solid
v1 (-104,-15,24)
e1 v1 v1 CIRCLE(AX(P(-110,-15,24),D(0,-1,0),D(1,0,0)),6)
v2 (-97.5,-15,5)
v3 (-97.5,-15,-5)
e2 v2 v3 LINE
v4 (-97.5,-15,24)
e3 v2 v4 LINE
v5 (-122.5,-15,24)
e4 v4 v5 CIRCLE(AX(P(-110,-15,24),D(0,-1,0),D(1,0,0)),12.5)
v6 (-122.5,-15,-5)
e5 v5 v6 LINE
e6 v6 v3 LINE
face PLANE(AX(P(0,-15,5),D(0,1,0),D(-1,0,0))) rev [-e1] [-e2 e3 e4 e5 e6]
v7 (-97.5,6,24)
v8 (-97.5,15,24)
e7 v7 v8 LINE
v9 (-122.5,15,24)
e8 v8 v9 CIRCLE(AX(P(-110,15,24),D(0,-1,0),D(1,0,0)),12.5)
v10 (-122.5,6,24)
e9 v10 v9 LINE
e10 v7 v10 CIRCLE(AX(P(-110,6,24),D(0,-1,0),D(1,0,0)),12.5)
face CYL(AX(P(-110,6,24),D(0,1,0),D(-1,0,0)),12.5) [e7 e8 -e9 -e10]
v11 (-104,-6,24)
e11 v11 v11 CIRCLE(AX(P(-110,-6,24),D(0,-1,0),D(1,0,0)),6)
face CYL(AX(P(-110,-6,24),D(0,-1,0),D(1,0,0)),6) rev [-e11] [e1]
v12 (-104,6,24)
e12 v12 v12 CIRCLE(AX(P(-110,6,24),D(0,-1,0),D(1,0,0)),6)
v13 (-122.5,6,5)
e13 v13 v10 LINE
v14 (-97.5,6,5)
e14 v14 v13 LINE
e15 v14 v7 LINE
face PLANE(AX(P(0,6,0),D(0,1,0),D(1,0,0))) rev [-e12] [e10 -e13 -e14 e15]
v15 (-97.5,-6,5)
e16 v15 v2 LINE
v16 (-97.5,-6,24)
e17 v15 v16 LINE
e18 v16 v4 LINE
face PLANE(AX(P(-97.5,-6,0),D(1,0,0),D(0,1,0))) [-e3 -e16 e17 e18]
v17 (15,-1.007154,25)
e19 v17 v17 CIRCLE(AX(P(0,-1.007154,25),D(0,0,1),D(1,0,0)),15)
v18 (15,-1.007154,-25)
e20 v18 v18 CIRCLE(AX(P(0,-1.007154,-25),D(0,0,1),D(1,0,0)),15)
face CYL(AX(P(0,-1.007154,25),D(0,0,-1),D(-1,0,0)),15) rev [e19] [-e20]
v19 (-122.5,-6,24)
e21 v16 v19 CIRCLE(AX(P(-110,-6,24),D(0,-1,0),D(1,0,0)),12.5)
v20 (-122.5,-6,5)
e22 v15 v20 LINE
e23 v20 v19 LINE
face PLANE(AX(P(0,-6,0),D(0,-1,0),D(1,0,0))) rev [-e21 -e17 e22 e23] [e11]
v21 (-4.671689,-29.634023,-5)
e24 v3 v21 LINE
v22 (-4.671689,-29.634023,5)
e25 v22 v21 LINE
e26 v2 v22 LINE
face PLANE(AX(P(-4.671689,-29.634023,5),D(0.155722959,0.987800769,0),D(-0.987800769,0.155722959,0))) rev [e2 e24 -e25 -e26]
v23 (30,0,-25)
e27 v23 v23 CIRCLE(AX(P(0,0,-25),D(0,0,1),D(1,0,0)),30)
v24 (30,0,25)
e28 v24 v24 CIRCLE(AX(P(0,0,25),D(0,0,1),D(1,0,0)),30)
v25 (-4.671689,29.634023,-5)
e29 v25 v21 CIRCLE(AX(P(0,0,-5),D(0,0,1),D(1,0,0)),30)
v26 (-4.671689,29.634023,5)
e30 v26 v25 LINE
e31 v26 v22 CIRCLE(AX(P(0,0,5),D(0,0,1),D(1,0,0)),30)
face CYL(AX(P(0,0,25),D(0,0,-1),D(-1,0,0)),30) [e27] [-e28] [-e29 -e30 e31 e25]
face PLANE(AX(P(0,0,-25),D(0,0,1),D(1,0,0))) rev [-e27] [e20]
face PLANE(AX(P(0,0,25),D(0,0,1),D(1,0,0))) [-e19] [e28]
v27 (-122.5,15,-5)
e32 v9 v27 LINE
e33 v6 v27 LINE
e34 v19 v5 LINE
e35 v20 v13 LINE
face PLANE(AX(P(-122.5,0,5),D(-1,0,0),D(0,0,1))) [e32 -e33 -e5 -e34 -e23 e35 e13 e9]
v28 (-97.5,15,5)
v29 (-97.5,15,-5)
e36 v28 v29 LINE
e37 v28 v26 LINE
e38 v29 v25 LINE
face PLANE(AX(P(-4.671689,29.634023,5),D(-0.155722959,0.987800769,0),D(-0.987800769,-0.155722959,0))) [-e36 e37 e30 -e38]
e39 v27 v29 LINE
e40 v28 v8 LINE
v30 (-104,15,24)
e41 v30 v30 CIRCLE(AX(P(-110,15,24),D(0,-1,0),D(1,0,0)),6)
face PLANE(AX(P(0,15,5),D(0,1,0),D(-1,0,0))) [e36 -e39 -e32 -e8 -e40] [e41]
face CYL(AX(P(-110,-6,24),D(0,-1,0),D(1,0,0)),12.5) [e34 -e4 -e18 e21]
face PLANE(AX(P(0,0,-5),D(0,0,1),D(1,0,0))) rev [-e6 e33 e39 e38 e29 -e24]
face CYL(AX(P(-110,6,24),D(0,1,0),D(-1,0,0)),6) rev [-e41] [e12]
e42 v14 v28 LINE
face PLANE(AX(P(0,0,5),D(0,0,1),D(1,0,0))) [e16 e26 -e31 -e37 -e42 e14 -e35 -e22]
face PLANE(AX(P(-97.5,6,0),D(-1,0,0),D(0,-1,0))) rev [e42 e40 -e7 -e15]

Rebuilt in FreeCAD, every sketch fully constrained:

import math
import FreeCAD as App
import Part
import Sketcher
from FreeCAD import Vector

doc = App.newDocument("Part")
body = doc.addObject("PartDesign::Body", "Body")

sketch1 = body.newObject("Sketcher::SketchObject", "Sketch")
sketch1.AttachmentSupport = (doc.getObject("XY_Plane"), [""])
sketch1.MapMode = "FlatFace"
sketch1.addGeometry(Part.Circle(Vector(0, 0, 0), Vector(0, 0, 1), 30), False)
sketch1.addGeometry(Part.Circle(Vector(0, -1, 0), Vector(0, 0, 1), 15), False)
sketch1.addConstraint(Sketcher.Constraint("Coincident", 0, 3, -1, 1))
sketch1.addConstraint(Sketcher.Constraint("PointOnObject", 1, 3, -2))
sketch1.addConstraint(Sketcher.Constraint("Diameter", 0, 60.0))
sketch1.addConstraint(Sketcher.Constraint("Diameter", 1, 30.0))
sketch1.addConstraint(Sketcher.Constraint("DistanceY", 1, 3, -1, 1, 1.007154))
pad1 = body.newObject("PartDesign::Pad", "Pad")
pad1.Profile = sketch1
pad1.Length = 50
pad1.Midplane = True

sketch2 = body.newObject("Sketcher::SketchObject", "Sketch001")
sketch2.AttachmentSupport = (doc.getObject("XY_Plane"), [""])
sketch2.MapMode = "FlatFace"
sketch2.addGeometry(Part.LineSegment(Vector(-122, 15, 0), Vector(-122, -15, 0)), False)
sketch2.addGeometry(Part.LineSegment(Vector(-122, -15, 0), Vector(-98, -15, 0)), False)
sketch2.addGeometry(Part.LineSegment(Vector(-98, -15, 0), Vector(-5, -30, 0)), False)
sketch2.addGeometry(Part.ArcOfCircle(Part.Circle(Vector(0, 0, 0), Vector(0, 0, 1), 30), math.radians(99), math.radians(261)), False)
sketch2.addGeometry(Part.LineSegment(Vector(-5, 30, 0), Vector(-98, 15, 0)), False)
sketch2.addGeometry(Part.LineSegment(Vector(-98, 15, 0), Vector(-122, 15, 0)), False)
sketch2.addConstraint(Sketcher.Constraint("Coincident", 0, 2, 1, 1))
sketch2.addConstraint(Sketcher.Constraint("Coincident", 1, 2, 2, 1))
sketch2.addConstraint(Sketcher.Constraint("Tangent", 2, 2, 3, 2))
sketch2.addConstraint(Sketcher.Constraint("Tangent", 3, 1, 4, 1))
sketch2.addConstraint(Sketcher.Constraint("Coincident", 4, 2, 5, 1))
sketch2.addConstraint(Sketcher.Constraint("Coincident", 5, 2, 0, 1))
sketch2.addConstraint(Sketcher.Constraint("Vertical", 0))
sketch2.addConstraint(Sketcher.Constraint("Horizontal", 1))
sketch2.addConstraint(Sketcher.Constraint("Horizontal", 5))
sketch2.addConstraint(Sketcher.Constraint("Coincident", 3, 3, -1, 1))
sketch2.addConstraint(Sketcher.Constraint("Symmetric", 1, 2, 4, 2, -1))
sketch2.addConstraint(Sketcher.Constraint("Radius", 3, 30.0))
sketch2.addConstraint(Sketcher.Constraint("DistanceX", 1, 1, 1, 2, 25.0))
sketch2.addConstraint(Sketcher.Constraint("DistanceY", 0, 2, 0, 1, 30.0))
sketch2.addConstraint(Sketcher.Constraint("DistanceX", 0, 2, -1, 1, 122.5))
pad2 = body.newObject("PartDesign::Pad", "Pad001")
pad2.Profile = sketch2
pad2.Length = 10
pad2.Midplane = True

sketch3 = body.newObject("Sketcher::SketchObject", "Sketch002")
sketch3.AttachmentSupport = (doc.getObject("XZ_Plane"), [""])
sketch3.MapMode = "FlatFace"
sketch3.AttachmentOffset = App.Placement(Vector(0, 0, 15), App.Rotation())
sketch3.addGeometry(Part.LineSegment(Vector(-122, 24, 0), Vector(-122, 5, 0)), False)
sketch3.addGeometry(Part.LineSegment(Vector(-122, 5, 0), Vector(-98, 5, 0)), False)
sketch3.addGeometry(Part.LineSegment(Vector(-98, 5, 0), Vector(-98, 24, 0)), False)
sketch3.addGeometry(Part.ArcOfCircle(Part.Circle(Vector(-110, 24, 0), Vector(0, 0, 1), 12), math.radians(0), math.radians(180)), False)
sketch3.addGeometry(Part.Circle(Vector(-110, 24, 0), Vector(0, 0, 1), 6), False)
sketch3.addConstraint(Sketcher.Constraint("Coincident", 0, 2, 1, 1))
sketch3.addConstraint(Sketcher.Constraint("Coincident", 1, 2, 2, 1))
sketch3.addConstraint(Sketcher.Constraint("Tangent", 2, 2, 3, 1))
sketch3.addConstraint(Sketcher.Constraint("Tangent", 3, 2, 0, 1))
sketch3.addConstraint(Sketcher.Constraint("Vertical", 0))
sketch3.addConstraint(Sketcher.Constraint("Horizontal", 1))
sketch3.addConstraint(Sketcher.Constraint("Vertical", 2))
sketch3.addConstraint(Sketcher.Constraint("Coincident", 4, 3, 3, 3))
sketch3.addConstraint(Sketcher.Constraint("Diameter", 4, 12.0))
sketch3.addConstraint(Sketcher.Constraint("Radius", 3, 12.5))
sketch3.addConstraint(Sketcher.Constraint("DistanceY", 0, 2, 0, 1, 19.0))
sketch3.addConstraint(Sketcher.Constraint("DistanceX", 3, 3, -1, 1, 110.0))
sketch3.addConstraint(Sketcher.Constraint("DistanceY", -1, 1, 3, 3, 24.0))
pad3 = body.newObject("PartDesign::Pad", "Pad002")
pad3.Profile = sketch3
pad3.Length = 9
pad3.Reversed = True
doc.recompute()

mirrored = body.newObject("PartDesign::Mirrored", "Mirrored")
mirrored.Originals = [pad3]
mirrored.MirrorPlane = (doc.getObject("XZ_Plane"), [""])
body.Tip = mirrored

doc.recompute()
